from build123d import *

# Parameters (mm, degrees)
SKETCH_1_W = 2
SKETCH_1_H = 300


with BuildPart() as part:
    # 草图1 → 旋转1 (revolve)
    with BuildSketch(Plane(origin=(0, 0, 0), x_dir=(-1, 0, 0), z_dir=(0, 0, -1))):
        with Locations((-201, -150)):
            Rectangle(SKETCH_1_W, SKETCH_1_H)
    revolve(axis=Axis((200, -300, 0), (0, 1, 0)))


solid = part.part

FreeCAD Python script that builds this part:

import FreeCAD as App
import Part
import Sketcher

V = App.Vector


def add_polygon(sketch, points):
    """Adds a closed chain of lines whose ends are joined by coincident constraints."""
    first, n = sketch.GeometryCount, len(points)
    for a, b in zip(points, points[1:] + points[:1]):
        sketch.addGeometry(Part.LineSegment(App.Vector(*a, 0), App.Vector(*b, 0)), False)
    for i in range(n):
        sketch.addConstraint(Sketcher.Constraint("Coincident", first + i, 2, first + (i + 1) % n, 1))

doc = App.newDocument("Part")
body = doc.addObject("PartDesign::Body", "Body")

# Sketch on XY plane
sketch1 = doc.addObject("Sketcher::SketchObject", "Sketch")
body.addObject(sketch1)
sketch1.AttachmentSupport = (doc.XY_Plane, [""])
sketch1.MapMode = "FlatFace"
add_polygon(sketch1, [(202, 0), (202, -300), (200, -300), (200, 0)])  # lines 0-3
sketch1.addGeometry(Part.LineSegment(V(200, -300, 0), V(200, 0, 0)), True)  # axis
sketch1.addConstraint([
    Sketcher.Constraint("Vertical", 0),
    Sketcher.Constraint("Horizontal", 1),
    Sketcher.Constraint("Vertical", 2),
    Sketcher.Constraint("Horizontal", 3),
    Sketcher.Constraint("Vertical", 4),
    Sketcher.Constraint("Coincident", 4, 1, 1, 2),
    Sketcher.Constraint("PointOnObject", 2, 2, -1),
    Sketcher.Constraint("PointOnObject", 4, 2, -1),
    Sketcher.Constraint("DistanceX", 1, 2, 1, 1, 2.0),
    Sketcher.Constraint("DistanceY", 0, 2, 0, 1, 300.0),
    Sketcher.Constraint("DistanceX", -1, 1, 0, 2, 202.0),
])
revolution = doc.addObject("PartDesign::Revolution", "Revolution")
body.addObject(revolution)
revolution.Profile = sketch1
revolution.ReferenceAxis = (sketch1, ["Axis0"])
revolution.Angle = 360

doc.recompute()
